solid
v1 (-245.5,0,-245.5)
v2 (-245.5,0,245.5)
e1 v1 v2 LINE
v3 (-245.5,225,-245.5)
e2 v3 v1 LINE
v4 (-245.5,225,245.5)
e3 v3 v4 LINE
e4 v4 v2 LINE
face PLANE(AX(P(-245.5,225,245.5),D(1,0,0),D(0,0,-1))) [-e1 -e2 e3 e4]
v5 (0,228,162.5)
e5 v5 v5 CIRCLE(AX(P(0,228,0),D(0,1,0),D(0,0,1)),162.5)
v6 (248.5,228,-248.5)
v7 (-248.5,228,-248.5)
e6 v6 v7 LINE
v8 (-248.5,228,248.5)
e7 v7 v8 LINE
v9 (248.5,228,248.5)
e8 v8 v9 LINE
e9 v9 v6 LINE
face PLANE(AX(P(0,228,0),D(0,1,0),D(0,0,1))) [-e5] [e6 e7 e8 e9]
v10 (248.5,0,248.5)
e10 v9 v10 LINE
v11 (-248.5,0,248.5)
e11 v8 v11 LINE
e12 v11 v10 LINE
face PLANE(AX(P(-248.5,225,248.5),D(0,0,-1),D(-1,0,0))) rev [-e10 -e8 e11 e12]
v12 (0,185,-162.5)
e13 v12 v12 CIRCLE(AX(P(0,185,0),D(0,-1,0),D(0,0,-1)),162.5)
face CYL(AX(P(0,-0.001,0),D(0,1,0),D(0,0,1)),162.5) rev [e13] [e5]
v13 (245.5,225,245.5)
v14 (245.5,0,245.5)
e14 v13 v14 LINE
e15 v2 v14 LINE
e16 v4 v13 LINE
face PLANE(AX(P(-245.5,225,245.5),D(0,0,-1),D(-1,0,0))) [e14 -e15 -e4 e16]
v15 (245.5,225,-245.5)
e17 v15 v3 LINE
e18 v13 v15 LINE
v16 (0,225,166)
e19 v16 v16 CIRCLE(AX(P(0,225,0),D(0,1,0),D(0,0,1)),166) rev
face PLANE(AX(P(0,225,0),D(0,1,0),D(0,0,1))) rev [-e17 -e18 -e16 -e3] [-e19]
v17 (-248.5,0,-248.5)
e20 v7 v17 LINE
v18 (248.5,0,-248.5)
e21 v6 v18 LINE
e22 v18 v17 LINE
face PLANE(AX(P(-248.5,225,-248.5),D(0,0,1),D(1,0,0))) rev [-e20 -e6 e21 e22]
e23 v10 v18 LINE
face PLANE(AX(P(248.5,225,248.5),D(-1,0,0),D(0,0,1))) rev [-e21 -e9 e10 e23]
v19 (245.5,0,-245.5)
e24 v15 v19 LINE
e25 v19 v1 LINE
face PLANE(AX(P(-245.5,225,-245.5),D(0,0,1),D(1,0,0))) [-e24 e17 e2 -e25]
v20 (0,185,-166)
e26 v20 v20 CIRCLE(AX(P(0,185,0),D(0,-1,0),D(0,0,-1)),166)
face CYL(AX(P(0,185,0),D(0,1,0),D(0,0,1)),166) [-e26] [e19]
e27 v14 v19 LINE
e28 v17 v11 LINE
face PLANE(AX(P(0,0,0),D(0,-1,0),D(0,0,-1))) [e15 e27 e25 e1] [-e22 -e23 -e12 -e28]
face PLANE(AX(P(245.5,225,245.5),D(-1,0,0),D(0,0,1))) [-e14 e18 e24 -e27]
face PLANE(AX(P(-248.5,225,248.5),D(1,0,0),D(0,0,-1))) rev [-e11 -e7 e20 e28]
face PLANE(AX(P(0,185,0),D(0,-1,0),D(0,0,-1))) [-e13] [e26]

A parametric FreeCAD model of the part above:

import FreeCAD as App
import Part
import Sketcher

V = App.Vector
Q = App.Units.Quantity


def add_polygon(sketch, points):
    """Adds a closed chain of lines whose ends are joined by coincident constraints."""
    first, n = sketch.GeometryCount, len(points)
    for a, b in zip(points, points[1:] + points[:1]):
        sketch.addGeometry(Part.LineSegment(App.Vector(*a, 0), App.Vector(*b, 0)), False)
    for i in range(n):
        sketch.addConstraint(Sketcher.Constraint("Coincident", first + i, 2, first + (i + 1) % n, 1))

doc = App.newDocument("Part")
body = doc.addObject("PartDesign::Body", "Body")

sketch1 = body.newObject("Sketcher::SketchObject", "Sketch")
sketch1.AttachmentSupport = (doc.getObject("XZ_Plane"), [""])
sketch1.MapMode = "FlatFace"
add_polygon(sketch1, [(-248, -248), (-248, 248), (248, 248), (248, -248)])
add_polygon(sketch1, [(246, 246), (-246, 246), (-246, -246), (246, -246)])
sketch1.addConstraint(Sketcher.Constraint("Vertical", 0))
sketch1.addConstraint(Sketcher.Constraint("Horizontal", 1))
sketch1.addConstraint(Sketcher.Constraint("Vertical", 2))
sketch1.addConstraint(Sketcher.Constraint("Horizontal", 3))
sketch1.addConstraint(Sketcher.Constraint("Horizontal", 4))
sketch1.addConstraint(Sketcher.Constraint("Vertical", 5))
sketch1.addConstraint(Sketcher.Constraint("Horizontal", 6))
sketch1.addConstraint(Sketcher.Constraint("Vertical", 7))
sketch1.addConstraint(Sketcher.Constraint("Symmetric", 0, 2, 2, 2, -1, 1))
sketch1.addConstraint(Sketcher.Constraint("Symmetric", 4, 2, 6, 2, -1, 1))
sketch1.addConstraint(Sketcher.Constraint("Equal", 3, 0))
sketch1.addConstraint(Sketcher.Constraint("Equal", 6, 5))
sketch1.addConstraint(Sketcher.Constraint("DistanceX", 1, 1, 1, 2, Q("497 mm")))
sketch1.addConstraint(Sketcher.Constraint("DistanceX", 4, 2, 4, 1, Q("491 mm")))
pad1 = body.newObject("PartDesign::Pad", "Pad")
pad1.Profile = sketch1
pad1.Length = 225
pad1.Reversed = True

sketch2 = body.newObject("Sketcher::SketchObject", "Sketch001")
sketch2.AttachmentSupport = (doc.getObject("XZ_Plane"), [""])
sketch2.MapMode = "FlatFace"
sketch2.AttachmentOffset = App.Placement(V(0, 0, -225), App.Rotation())
add_polygon(sketch2, [(-248, -248), (-248, 248), (248, 248), (248, -248)])
sketch2.addConstraint(Sketcher.Constraint("Vertical", 0))
sketch2.addConstraint(Sketcher.Constraint("Horizontal", 1))
sketch2.addConstraint(Sketcher.Constraint("Vertical", 2))
sketch2.addConstraint(Sketcher.Constraint("Horizontal", 3))
sketch2.addConstraint(Sketcher.Constraint("Symmetric", 0, 2, 2, 2, -1, 1))
sketch2.addConstraint(Sketcher.Constraint("Equal", 3, 0))
sketch2.addConstraint(Sketcher.Constraint("DistanceX", 1, 1, 1, 2, Q("497 mm")))
pad2 = body.newObject("PartDesign::Pad", "Pad001")
pad2.Profile = sketch2
pad2.Length = 3
pad2.Reversed = True

sketch3 = body.newObject("Sketcher::SketchObject", "Sketch002")
sketch3.AttachmentSupport = (doc.getObject("XZ_Plane"), [""])
sketch3.MapMode = "FlatFace"
sketch3.AttachmentOffset = App.Placement(V(0, 0, -228), App.Rotation())
sketch3.addGeometry(Part.Circle(V(0, 0, 0), V(0, 0, 1), 162), False)
sketch3.addConstraint(Sketcher.Constraint("Coincident", 0, 3, -1, 1))
sketch3.addConstraint(Sketcher.Constraint("Diameter", 0, Q("325 mm")))
pocket1 = body.newObject("PartDesign::Pocket", "Pocket")
pocket1.Profile = sketch3
pocket1.Type = "UpToFirst"
pocket1.Reversed = True

sketch4 = body.newObject("Sketcher::SketchObject", "Sketch003")
sketch4.AttachmentSupport = (doc.getObject("XZ_Plane"), [""])
sketch4.MapMode = "FlatFace"
sketch4.AttachmentOffset = App.Placement(V(0, 0, -225), App.Rotation())
sketch4.addGeometry(Part.Circle(V(0, 0, 0), V(0, 0, 1), 166), False)
sketch4.addGeometry(Part.Circle(V(0, 0, 0), V(0, 0, 1), 162), False)
sketch4.addConstraint(Sketcher.Constraint("Coincident", 0, 3, -1, 1))
sketch4.addConstraint(Sketcher.Constraint("Coincident", 1, 3, -1, 1))
sketch4.addConstraint(Sketcher.Constraint("Diameter", 0, Q("332 mm")))
sketch4.addConstraint(Sketcher.Constraint("Diameter", 1, Q("325 mm")))
pad3 = body.newObject("PartDesign::Pad", "Pad002")
pad3.Profile = sketch4
pad3.Length = 40

doc.recompute()
